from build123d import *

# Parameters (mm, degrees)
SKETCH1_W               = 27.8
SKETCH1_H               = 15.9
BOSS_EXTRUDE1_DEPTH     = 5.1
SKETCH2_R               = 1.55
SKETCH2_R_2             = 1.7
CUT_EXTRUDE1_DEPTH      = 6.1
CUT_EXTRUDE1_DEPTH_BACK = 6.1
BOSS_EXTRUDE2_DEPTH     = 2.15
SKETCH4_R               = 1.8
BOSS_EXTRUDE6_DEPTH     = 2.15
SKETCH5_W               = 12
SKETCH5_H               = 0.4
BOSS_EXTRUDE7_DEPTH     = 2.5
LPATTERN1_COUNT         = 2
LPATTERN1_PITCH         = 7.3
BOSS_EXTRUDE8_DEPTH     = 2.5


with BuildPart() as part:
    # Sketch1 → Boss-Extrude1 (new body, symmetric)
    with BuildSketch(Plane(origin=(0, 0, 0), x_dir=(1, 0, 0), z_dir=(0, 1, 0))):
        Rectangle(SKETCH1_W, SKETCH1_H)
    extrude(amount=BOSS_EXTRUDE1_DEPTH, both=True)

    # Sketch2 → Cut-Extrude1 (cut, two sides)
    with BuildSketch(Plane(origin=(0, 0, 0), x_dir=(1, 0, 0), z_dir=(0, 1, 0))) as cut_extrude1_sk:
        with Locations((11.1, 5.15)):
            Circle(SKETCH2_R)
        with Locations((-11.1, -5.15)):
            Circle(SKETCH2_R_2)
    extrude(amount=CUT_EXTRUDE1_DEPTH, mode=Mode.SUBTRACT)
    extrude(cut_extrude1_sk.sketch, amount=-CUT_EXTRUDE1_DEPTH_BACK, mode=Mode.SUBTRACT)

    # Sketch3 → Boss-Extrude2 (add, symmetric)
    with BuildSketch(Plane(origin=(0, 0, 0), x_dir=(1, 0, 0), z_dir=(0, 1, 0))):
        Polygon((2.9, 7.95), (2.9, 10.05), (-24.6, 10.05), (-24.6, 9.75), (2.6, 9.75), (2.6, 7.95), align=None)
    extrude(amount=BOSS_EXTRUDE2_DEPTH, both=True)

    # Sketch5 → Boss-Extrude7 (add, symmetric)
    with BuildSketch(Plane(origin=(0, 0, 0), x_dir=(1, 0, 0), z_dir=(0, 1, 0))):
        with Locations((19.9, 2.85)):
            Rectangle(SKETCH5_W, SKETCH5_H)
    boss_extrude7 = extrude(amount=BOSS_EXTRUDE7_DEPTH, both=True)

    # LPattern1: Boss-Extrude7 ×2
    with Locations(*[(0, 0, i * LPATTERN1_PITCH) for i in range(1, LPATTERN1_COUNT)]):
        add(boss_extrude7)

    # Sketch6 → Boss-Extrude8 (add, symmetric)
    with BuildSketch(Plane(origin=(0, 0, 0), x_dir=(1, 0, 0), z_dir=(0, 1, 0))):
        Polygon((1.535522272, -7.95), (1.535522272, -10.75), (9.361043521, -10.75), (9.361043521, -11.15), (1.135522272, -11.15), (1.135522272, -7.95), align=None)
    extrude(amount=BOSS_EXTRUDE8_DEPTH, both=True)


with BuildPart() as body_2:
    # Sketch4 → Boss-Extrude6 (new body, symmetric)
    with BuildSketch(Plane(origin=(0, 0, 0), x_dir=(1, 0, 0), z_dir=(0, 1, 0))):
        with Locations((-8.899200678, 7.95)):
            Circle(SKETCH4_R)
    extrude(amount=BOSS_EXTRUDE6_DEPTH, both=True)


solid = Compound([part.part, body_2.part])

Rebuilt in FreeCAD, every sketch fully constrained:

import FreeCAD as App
import Part
import Sketcher


def add_polygon(sketch, points):
    """Adds a closed chain of lines whose ends are joined by coincident constraints."""
    first, n = sketch.GeometryCount, len(points)
    for a, b in zip(points, points[1:] + points[:1]):
        sketch.addGeometry(Part.LineSegment(App.Vector(*a, 0), App.Vector(*b, 0)), False)
    for i in range(n):
        sketch.addConstraint(Sketcher.Constraint("Coincident", first + i, 2, first + (i + 1) % n, 1))

doc = App.newDocument("Part")
body = doc.addObject("PartDesign::Body", "Body")

# Sketch on XZ plane
sketch1 = doc.addObject("Sketcher::SketchObject", "Sketch")
body.addObject(sketch1)
sketch1.AttachmentSupport = (doc.XZ_Plane, [""])
sketch1.MapMode = "FlatFace"
add_polygon(sketch1, [(-14, -8), (-14, 8), (14, 8), (14, -8)])  # lines 0-3
sketch1.addConstraint([
    Sketcher.Constraint("Vertical", 0),
    Sketcher.Constraint("Horizontal", 1),
    Sketcher.Constraint("Vertical", 2),
    Sketcher.Constraint("Horizontal", 3),
    Sketcher.Constraint("Symmetric", 0, 2, 2, 2, -1, 1),
    Sketcher.Constraint("DistanceX", 1, 1, 1, 2, 27.8),
    Sketcher.Constraint("DistanceY", 0, 1, 0, 2, 15.9),
])
pad1 = doc.addObject("PartDesign::Pad", "Pad")
body.addObject(pad1)
pad1.Profile = sketch1
pad1.Length = 10.2
pad1.Midplane = True

# Sketch on XZ plane
sketch2 = doc.addObject("Sketcher::SketchObject", "Sketch001")
body.addObject(sketch2)
sketch2.AttachmentSupport = (doc.XZ_Plane, [""])
sketch2.MapMode = "FlatFace"
sketch2.addGeometry([
    Part.Circle(App.Vector(11.1, -5.2, 0), App.Vector(0, 0, 1), 1.6),
    Part.Circle(App.Vector(-11.1, 5.2, 0), App.Vector(0, 0, 1), 1.7),
], False)
sketch2.addConstraint([
    Sketcher.Constraint("Symmetric", 0, 3, 1, 3, -1, 1),
    Sketcher.Constraint("Diameter", 0, 3.1),
    Sketcher.Constraint("Diameter", 1, 3.4),
    Sketcher.Constraint("DistanceX", -1, 1, 0, 3, 11.1),
    Sketcher.Constraint("DistanceY", 0, 3, 1, 3, 10.3),
])
pocket1 = doc.addObject("PartDesign::Pocket", "Pocket")
body.addObject(pocket1)
pocket1.Profile = sketch2
pocket1.Type = "ThroughAll"
pocket1.Midplane = True

# Sketch on XZ plane
sketch3 = doc.addObject("Sketcher::SketchObject", "Sketch002")
body.addObject(sketch3)
sketch3.AttachmentSupport = (doc.XZ_Plane, [""])
sketch3.MapMode = "FlatFace"
add_polygon(sketch3, [(2.9, -7.95), (2.9, -10.05), (-24.6, -10.05), (-24.6, -9.75), (2.6, -9.75), (2.6, -7.95)])  # lines 0-5
sketch3.addConstraint([
    Sketcher.Constraint("Vertical", 0),
    Sketcher.Constraint("Horizontal", 1),
    Sketcher.Constraint("Vertical", 2),
    Sketcher.Constraint("Horizontal", 3),
    Sketcher.Constraint("Vertical", 4),
    Sketcher.Constraint("Horizontal", 5),
    Sketcher.Constraint("Equal", 5, 2),
    Sketcher.Constraint("DistanceX", 1, 2, 1, 1, 27.5),
    Sketcher.Constraint("DistanceX", 3, 1, 3, 2, 27.2),
    Sketcher.Constraint("DistanceY", 0, 2, 0, 1, 2.1),
    Sketcher.Constraint("DistanceX", -1, 1, 0, 2, 2.9),
    Sketcher.Constraint("DistanceY", 0, 2, -1, 1, 10.05),
])
pad2 = doc.addObject("PartDesign::Pad", "Pad001")
body.addObject(pad2)
pad2.Profile = sketch3
pad2.Length = 4.3
pad2.Midplane = True

# Sketch on XZ plane
sketch4 = doc.addObject("Sketcher::SketchObject", "Sketch003")
body.addObject(sketch4)
sketch4.AttachmentSupport = (doc.XZ_Plane, [""])
sketch4.MapMode = "FlatFace"
add_polygon(sketch4, [(13.9, -3.05), (13.9, -2.65), (25.9, -2.65), (25.9, -3.05)])  # lines 0-3
sketch4.addConstraint([
    Sketcher.Constraint("Vertical", 0),
    Sketcher.Constraint("Horizontal", 1),
    Sketcher.Constraint("Vertical", 2),
    Sketcher.Constraint("Horizontal", 3),
    Sketcher.Constraint("DistanceX", 1, 1, 1, 2, 12.0),
    Sketcher.Constraint("DistanceY", 0, 1, 0, 2, 0.4),
    Sketcher.Constraint("DistanceX", -1, 1, 0, 2, 13.9),
    Sketcher.Constraint("DistanceY", 0, 2, -1, 1, 2.65),
])
pad3 = doc.addObject("PartDesign::Pad", "Pad002")
body.addObject(pad3)
pad3.Profile = sketch4
pad3.Length = 5
pad3.Midplane = True
doc.recompute()

linearpattern = doc.addObject("PartDesign::LinearPattern", "LinearPattern")
body.addObject(linearpattern)
linearpattern.Originals = [pad3]
linearpattern.Direction = (doc.Z_Axis, [""])
linearpattern.Mode = "offset"
linearpattern.Offset = 7.3
linearpattern.Occurrences = 2
body.Tip = linearpattern

# Sketch on XZ plane
sketch5 = doc.addObject("Sketcher::SketchObject", "Sketch004")
body.addObject(sketch5)
sketch5.AttachmentSupport = (doc.XZ_Plane, [""])
sketch5.MapMode = "FlatFace"
add_polygon(sketch5, [(1.54, 10.75), (1.54, 7.95), (1.14, 7.95), (1.14, 11.15), (9.36, 11.15), (9.36, 10.75)])  # lines 0-5
sketch5.addConstraint([
    Sketcher.Constraint("Vertical", 0),
    Sketcher.Constraint("Horizontal", 1),
    Sketcher.Constraint("Vertical", 2),
    Sketcher.Constraint("Horizontal", 3),
    Sketcher.Constraint("Vertical", 4),
    Sketcher.Constraint("Horizontal", 5),
    Sketcher.Constraint("Equal", 1, 4),
    Sketcher.Constraint("DistanceX", 1, 2, 1, 1, 0.4),
    Sketcher.Constraint("DistanceY", 0, 2, 0, 1, 2.8),
    Sketcher.Constraint("DistanceY", -1, 1, 0, 2, 7.95),
    Sketcher.Constraint("DistanceX", 3, 1, 3, 2, 8.225521),
    Sketcher.Constraint("DistanceX", -1, 1, 0, 2, 1.535522),
])
pad4 = doc.addObject("PartDesign::Pad", "Pad003")
body.addObject(pad4)
pad4.Profile = sketch5
pad4.Length = 5
pad4.Midplane = True
body2 = doc.addObject("PartDesign::Body", "Body001")

# Sketch on XZ plane
sketch6 = doc.addObject("Sketcher::SketchObject", "Sketch005")
body2.addObject(sketch6)
sketch6.AttachmentSupport = (doc.getObject("XZ_Plane001"), [""])
sketch6.MapMode = "FlatFace"
sketch6.addGeometry(Part.Circle(App.Vector(-8.9, -8, 0), App.Vector(0, 0, 1), 1.8), False)
sketch6.addConstraint([
    Sketcher.Constraint("Diameter", 0, 3.6),
    Sketcher.Constraint("DistanceY", 0, 3, -1, 1, 7.95),
    Sketcher.Constraint("DistanceX", 0, 3, -1, 1, 8.899201),
])
pad5 = doc.addObject("PartDesign::Pad", "Pad004")
body2.addObject(pad5)
pad5.Profile = sketch6
pad5.Length = 4.3
pad5.Midplane = True

doc.recompute()
